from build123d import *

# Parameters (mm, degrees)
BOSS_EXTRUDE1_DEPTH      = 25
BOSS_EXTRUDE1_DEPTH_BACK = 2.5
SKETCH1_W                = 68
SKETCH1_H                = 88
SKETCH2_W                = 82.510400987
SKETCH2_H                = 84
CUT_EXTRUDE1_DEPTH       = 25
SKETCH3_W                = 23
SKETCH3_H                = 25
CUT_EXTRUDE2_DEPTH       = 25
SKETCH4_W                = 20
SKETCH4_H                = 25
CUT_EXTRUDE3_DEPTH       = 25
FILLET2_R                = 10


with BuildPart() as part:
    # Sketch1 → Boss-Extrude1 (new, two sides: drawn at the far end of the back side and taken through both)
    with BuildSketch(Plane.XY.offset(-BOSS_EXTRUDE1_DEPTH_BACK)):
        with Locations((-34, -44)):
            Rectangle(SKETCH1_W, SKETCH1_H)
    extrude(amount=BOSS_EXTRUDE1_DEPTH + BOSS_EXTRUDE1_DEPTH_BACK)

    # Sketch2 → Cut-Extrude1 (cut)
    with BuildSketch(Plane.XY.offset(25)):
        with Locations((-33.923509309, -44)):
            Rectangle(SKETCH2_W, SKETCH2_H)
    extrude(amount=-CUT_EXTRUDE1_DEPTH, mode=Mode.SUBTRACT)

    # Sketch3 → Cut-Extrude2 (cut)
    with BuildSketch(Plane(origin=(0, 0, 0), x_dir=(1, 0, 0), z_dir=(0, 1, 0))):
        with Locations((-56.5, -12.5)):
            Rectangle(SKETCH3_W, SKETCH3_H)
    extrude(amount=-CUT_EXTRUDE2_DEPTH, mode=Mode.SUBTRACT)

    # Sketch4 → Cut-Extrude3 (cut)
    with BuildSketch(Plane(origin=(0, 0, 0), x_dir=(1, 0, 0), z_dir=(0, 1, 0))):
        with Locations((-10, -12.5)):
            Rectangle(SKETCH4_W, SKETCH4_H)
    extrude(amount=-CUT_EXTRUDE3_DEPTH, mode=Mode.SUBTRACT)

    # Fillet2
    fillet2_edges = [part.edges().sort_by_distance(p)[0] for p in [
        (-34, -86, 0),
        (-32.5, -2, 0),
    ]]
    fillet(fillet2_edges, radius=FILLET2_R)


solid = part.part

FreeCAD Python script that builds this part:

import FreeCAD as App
import Part
import Sketcher
Q = App.Units.Quantity


def edges_at(feature, points):
    """Names of the edges that pass closest to the given points."""
    edges = feature.Shape.Edges
    near = lambda p: min(range(len(edges)), key=lambda i: edges[i].distToShape(Part.Vertex(*p))[0])
    return sorted({f"Edge{near(p) + 1}" for p in points})


def add_polygon(sketch, points):
    """Adds a closed chain of lines whose ends are joined by coincident constraints."""
    first, n = sketch.GeometryCount, len(points)
    for a, b in zip(points, points[1:] + points[:1]):
        sketch.addGeometry(Part.LineSegment(App.Vector(*a, 0), App.Vector(*b, 0)), False)
    for i in range(n):
        sketch.addConstraint(Sketcher.Constraint("Coincident", first + i, 2, first + (i + 1) % n, 1))

doc = App.newDocument("Part")
params = doc.addObject("Spreadsheet::Sheet", "Params")
for row, (alias, value) in enumerate([
    ("sketch1_width", "68 mm"),
    ("sketch1_height", "88 mm"),
    ("pad1_length", "25 mm"),
    ("pad1_length2", "2.5 mm"),
    ("sketch2_height", "84 mm"),
    ("pocket1_length", "25 mm"),
    ("sketch3_width", "23 mm"),
    ("sketch3_height", "25 mm"),
    ("pocket2_length", "25 mm"),
    ("sketch4_width", "20 mm"),
    ("sketch4_height", "25 mm"),
    ("pocket3_length", "25 mm"),
    ("fillet_radius", "10 mm"),
], start=1):
    params.set(f"A{row}", alias)
    params.set(f"B{row}", "=" + value)
    params.setAlias(f"B{row}", alias)

body = doc.addObject("PartDesign::Body", "Body")

sketch1 = doc.addObject("Sketcher::SketchObject", "Sketch")
body.addObject(sketch1)
sketch1.AttachmentSupport = (doc.XY_Plane, [""])
sketch1.MapMode = "FlatFace"
add_polygon(sketch1, [(-68, 0), (-68, -88), (0, -88), (0, 0)])
sketch1.addConstraint(Sketcher.Constraint("Vertical", 0))
sketch1.addConstraint(Sketcher.Constraint("Horizontal", 1))
sketch1.addConstraint(Sketcher.Constraint("Vertical", 2))
sketch1.addConstraint(Sketcher.Constraint("Horizontal", 3))
sketch1.addConstraint(Sketcher.Constraint("Coincident", 2, 2, -1, 1))
sketch1.addConstraint(Sketcher.Constraint("DistanceX", 1, 1, 1, 2, Q("68 mm")))
sketch1.addConstraint(Sketcher.Constraint("DistanceY", 0, 2, 0, 1, Q("88 mm")))
sketch1.setExpression("Constraints[9]", "Params.sketch1_width")
sketch1.setExpression("Constraints[10]", "Params.sketch1_height")
pad1 = doc.addObject("PartDesign::Pad", "Pad")
body.addObject(pad1)
pad1.Profile = sketch1
pad1.Type = "TwoLengths"
pad1.setExpression("Length", "Params.pad1_length")
pad1.setExpression("Length2", "Params.pad1_length2")

sketch2 = doc.addObject("Sketcher::SketchObject", "Sketch001")
body.addObject(sketch2)
sketch2.AttachmentSupport = (doc.XY_Plane, [""])
sketch2.MapMode = "FlatFace"
sketch2.AttachmentOffset = App.Placement(App.Vector(0, 0, 25), App.Rotation())
add_polygon(sketch2, [(-75, -2), (-75, -86), (7, -86), (7, -2)])
sketch2.addConstraint(Sketcher.Constraint("Vertical", 0))
sketch2.addConstraint(Sketcher.Constraint("Horizontal", 1))
sketch2.addConstraint(Sketcher.Constraint("Vertical", 2))
sketch2.addConstraint(Sketcher.Constraint("Horizontal", 3))
sketch2.addConstraint(Sketcher.Constraint("DistanceY", 0, 2, 0, 1, Q("84 mm")))
sketch2.addConstraint(Sketcher.Constraint("DistanceY", 0, 2, -1, 1, Q("86 mm")))
sketch2.addConstraint(Sketcher.Constraint("DistanceX", 1, 1, 1, 2, Q("82.510401 mm")))
sketch2.addConstraint(Sketcher.Constraint("DistanceX", 0, 2, -1, 1, Q("75.17871 mm")))
sketch2.setExpression("Constraints[8]", "Params.sketch2_height")
pocket1 = doc.addObject("PartDesign::Pocket", "Pocket")
body.addObject(pocket1)
pocket1.Profile = sketch2
pocket1.setExpression("Length", "Params.pocket1_length")

sketch3 = doc.addObject("Sketcher::SketchObject", "Sketch002")
body.addObject(sketch3)
sketch3.AttachmentSupport = (doc.XZ_Plane, [""])
sketch3.MapMode = "FlatFace"
add_polygon(sketch3, [(-68, 0), (-68, 25), (-45, 25), (-45, 0)])
sketch3.addConstraint(Sketcher.Constraint("Vertical", 0))
sketch3.addConstraint(Sketcher.Constraint("Horizontal", 1))
sketch3.addConstraint(Sketcher.Constraint("Vertical", 2))
sketch3.addConstraint(Sketcher.Constraint("Horizontal", 3))
sketch3.addConstraint(Sketcher.Constraint("PointOnObject", 2, 2, -1))
sketch3.addConstraint(Sketcher.Constraint("DistanceX", 1, 1, 1, 2, Q("23 mm")))
sketch3.addConstraint(Sketcher.Constraint("DistanceY", 0, 1, 0, 2, Q("25 mm")))
sketch3.addConstraint(Sketcher.Constraint("DistanceX", 0, 2, -1, 1, Q("68 mm")))
sketch3.setExpression("Constraints[9]", "Params.sketch3_width")
sketch3.setExpression("Constraints[10]", "Params.sketch3_height")
pocket2 = doc.addObject("PartDesign::Pocket", "Pocket001")
body.addObject(pocket2)
pocket2.Profile = sketch3
pocket2.setExpression("Length", "Params.pocket2_length")
pocket2.Reversed = True

sketch4 = doc.addObject("Sketcher::SketchObject", "Sketch003")
body.addObject(sketch4)
sketch4.AttachmentSupport = (doc.XZ_Plane, [""])
sketch4.MapMode = "FlatFace"
add_polygon(sketch4, [(-20, 0), (-20, 25), (0, 25), (0, 0)])
sketch4.addConstraint(Sketcher.Constraint("Vertical", 0))
sketch4.addConstraint(Sketcher.Constraint("Horizontal", 1))
sketch4.addConstraint(Sketcher.Constraint("Vertical", 2))
sketch4.addConstraint(Sketcher.Constraint("Horizontal", 3))
sketch4.addConstraint(Sketcher.Constraint("Coincident", 2, 2, -1, 1))
sketch4.addConstraint(Sketcher.Constraint("DistanceX", 1, 1, 1, 2, Q("20 mm")))
sketch4.addConstraint(Sketcher.Constraint("DistanceY", 0, 1, 0, 2, Q("25 mm")))
sketch4.setExpression("Constraints[9]", "Params.sketch4_width")
sketch4.setExpression("Constraints[10]", "Params.sketch4_height")
pocket3 = doc.addObject("PartDesign::Pocket", "Pocket002")
body.addObject(pocket3)
pocket3.Profile = sketch4
pocket3.setExpression("Length", "Params.pocket3_length")
pocket3.Reversed = True
doc.recompute()

fillet = doc.addObject("PartDesign::Fillet", "Fillet")
body.addObject(fillet)
fillet.Base = (pocket3, edges_at(pocket3, [(-34, -86, 0), (-32.5, -2, 0)]))
fillet.setExpression("Radius", "Params.fillet_radius")

doc.recompute()
